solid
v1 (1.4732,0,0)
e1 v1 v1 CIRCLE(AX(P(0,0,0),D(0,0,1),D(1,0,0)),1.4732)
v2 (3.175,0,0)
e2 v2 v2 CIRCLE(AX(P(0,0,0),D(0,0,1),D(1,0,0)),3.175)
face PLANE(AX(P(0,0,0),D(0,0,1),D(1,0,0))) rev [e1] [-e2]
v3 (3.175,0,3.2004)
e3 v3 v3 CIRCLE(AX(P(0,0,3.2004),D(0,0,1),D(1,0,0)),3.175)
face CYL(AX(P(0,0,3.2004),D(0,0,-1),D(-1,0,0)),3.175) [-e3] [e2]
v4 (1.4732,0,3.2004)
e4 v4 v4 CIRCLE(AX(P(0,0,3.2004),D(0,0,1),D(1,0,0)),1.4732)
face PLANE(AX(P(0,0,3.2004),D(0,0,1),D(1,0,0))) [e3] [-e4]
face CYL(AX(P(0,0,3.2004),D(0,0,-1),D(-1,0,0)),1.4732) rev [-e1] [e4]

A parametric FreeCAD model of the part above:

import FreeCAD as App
import Part
import Sketcher

V = App.Vector
Q = App.Units.Quantity

doc = App.newDocument("Part")
params = doc.addObject("Spreadsheet::Sheet", "Params")
for row, (alias, value) in enumerate([
    ("sketch1_diameter", "0.25 in"),
    ("sketch1_diameter2", "0.116 in"),
    ("pad1_length", "0.126 in"),
], start=1):
    params.set(f"A{row}", alias)
    params.set(f"B{row}", "=" + value)
    params.setAlias(f"B{row}", alias)

body = doc.addObject("PartDesign::Body", "Body")

# Sketch on XY plane
sketch1 = body.newObject("Sketcher::SketchObject", "Sketch")
sketch1.AttachmentSupport = (doc.getObject("XY_Plane"), [""])
sketch1.MapMode = "FlatFace"
sketch1.addGeometry(Part.Circle(V(0, 0, 0), V(0, 0, 1), 3.2), False)
sketch1.addGeometry(Part.Circle(V(0, 0, 0), V(0, 0, 1), 1.5), False)
sketch1.addConstraint(Sketcher.Constraint("Coincident", 0, 3, -1, 1))
sketch1.addConstraint(Sketcher.Constraint("Coincident", 1, 3, -1, 1))
sketch1.addConstraint(Sketcher.Constraint("Diameter", 0, Q("0.25 in")))
sketch1.addConstraint(Sketcher.Constraint("Diameter", 1, Q("0.116 in")))
sketch1.setExpression("Constraints[2]", "Params.sketch1_diameter")
sketch1.setExpression("Constraints[3]", "Params.sketch1_diameter2")
pad1 = body.newObject("PartDesign::Pad", "Pad")
pad1.Profile = sketch1
pad1.setExpression("Length", "Params.pad1_length")

doc.recompute()
